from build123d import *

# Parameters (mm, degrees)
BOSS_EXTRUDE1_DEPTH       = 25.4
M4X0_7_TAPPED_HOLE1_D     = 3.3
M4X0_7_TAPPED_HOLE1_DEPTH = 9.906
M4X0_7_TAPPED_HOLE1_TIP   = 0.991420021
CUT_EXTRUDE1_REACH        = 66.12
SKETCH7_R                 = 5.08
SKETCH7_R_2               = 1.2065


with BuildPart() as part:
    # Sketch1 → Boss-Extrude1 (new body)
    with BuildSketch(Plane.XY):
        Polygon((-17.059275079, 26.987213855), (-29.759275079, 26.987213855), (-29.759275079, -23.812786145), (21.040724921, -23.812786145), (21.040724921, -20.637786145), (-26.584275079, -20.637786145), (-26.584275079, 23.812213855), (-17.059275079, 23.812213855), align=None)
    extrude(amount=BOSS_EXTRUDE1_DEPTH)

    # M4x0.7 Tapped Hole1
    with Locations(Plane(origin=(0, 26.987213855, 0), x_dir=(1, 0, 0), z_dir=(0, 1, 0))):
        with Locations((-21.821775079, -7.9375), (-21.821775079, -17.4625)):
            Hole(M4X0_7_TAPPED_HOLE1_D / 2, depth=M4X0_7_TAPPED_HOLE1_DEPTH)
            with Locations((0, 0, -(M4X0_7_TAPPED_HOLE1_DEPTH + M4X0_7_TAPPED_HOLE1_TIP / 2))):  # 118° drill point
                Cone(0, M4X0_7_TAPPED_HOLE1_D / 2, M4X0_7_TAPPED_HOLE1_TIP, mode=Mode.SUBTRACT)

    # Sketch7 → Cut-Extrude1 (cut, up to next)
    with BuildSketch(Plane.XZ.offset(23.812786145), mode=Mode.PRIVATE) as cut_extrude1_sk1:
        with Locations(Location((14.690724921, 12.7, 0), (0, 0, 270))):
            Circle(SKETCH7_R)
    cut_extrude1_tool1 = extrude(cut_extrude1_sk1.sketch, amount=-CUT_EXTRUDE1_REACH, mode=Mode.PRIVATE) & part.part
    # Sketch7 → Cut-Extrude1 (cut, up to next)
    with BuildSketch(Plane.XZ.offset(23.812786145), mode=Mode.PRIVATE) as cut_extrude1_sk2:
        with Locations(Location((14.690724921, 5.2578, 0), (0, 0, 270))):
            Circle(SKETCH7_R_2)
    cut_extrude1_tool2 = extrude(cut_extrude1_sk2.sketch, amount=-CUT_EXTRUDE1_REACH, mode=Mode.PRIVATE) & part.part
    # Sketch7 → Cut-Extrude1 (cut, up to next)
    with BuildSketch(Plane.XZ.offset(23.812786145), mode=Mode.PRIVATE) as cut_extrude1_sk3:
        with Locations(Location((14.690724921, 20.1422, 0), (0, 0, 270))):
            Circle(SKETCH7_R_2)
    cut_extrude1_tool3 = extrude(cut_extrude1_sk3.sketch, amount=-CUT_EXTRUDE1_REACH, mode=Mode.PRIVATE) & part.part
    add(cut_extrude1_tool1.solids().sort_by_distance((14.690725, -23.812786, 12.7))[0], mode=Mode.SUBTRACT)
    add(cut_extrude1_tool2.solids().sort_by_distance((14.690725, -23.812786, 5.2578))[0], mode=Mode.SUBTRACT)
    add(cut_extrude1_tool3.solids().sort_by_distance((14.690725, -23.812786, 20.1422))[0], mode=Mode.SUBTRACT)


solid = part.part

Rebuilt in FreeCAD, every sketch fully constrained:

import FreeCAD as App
import Part
import Sketcher
from FreeCAD import Vector
Q = App.Units.Quantity

doc = App.newDocument("Part")
params = doc.addObject("Spreadsheet::Sheet", "Params")
for row, (alias, value) in enumerate([
    ("sketch1_width", "2 in"),
    ("sketch1_width2", "0.5 in"),
    ("sketch1_height", "1.75 in"),
    ("sketch1_width3", "1.875 in"),
    ("pad1_length", "1 in"),
    ("hole_diameter", "3.3 mm"),
    ("hole_depth", "0.39 in"),
    ("sketch3_diameter", "0.4 in"),
    ("sketch4_diameter", "0.095 in"),
    ("sketch5_diameter", "0.095 in"),
], start=1):
    params.set(f"A{row}", alias)
    params.set(f"B{row}", "=" + value)
    params.setAlias(f"B{row}", alias)

body = doc.addObject("PartDesign::Body", "Body")

sketch1 = body.newObject("Sketcher::SketchObject", "Sketch")
sketch1.AttachmentSupport = (doc.getObject("XY_Plane"), [""])
sketch1.MapMode = "FlatFace"
sketch1.addGeometry([
    Part.LineSegment(Vector(-17.1, 27, 0), Vector(-29.8, 27, 0)),
    Part.LineSegment(Vector(-29.8, 27, 0), Vector(-29.8, -23.8, 0)),
    Part.LineSegment(Vector(-29.8, -23.8, 0), Vector(21, -23.8, 0)),
    Part.LineSegment(Vector(21, -23.8, 0), Vector(21, -20.6, 0)),
    Part.LineSegment(Vector(21, -20.6, 0), Vector(-26.6, -20.6, 0)),
    Part.LineSegment(Vector(-26.6, -20.6, 0), Vector(-26.6, 23.8, 0)),
    Part.LineSegment(Vector(-26.6, 23.8, 0), Vector(-17.1, 23.8, 0)),
    Part.LineSegment(Vector(-17.1, 23.8, 0), Vector(-17.1, 27, 0)),
], False)
sketch1.addConstraint([
    Sketcher.Constraint("Coincident", 0, 2, 1, 1),
    Sketcher.Constraint("Coincident", 1, 2, 2, 1),
    Sketcher.Constraint("Coincident", 2, 2, 3, 1),
    Sketcher.Constraint("Coincident", 3, 2, 4, 1),
    Sketcher.Constraint("Coincident", 4, 2, 5, 1),
    Sketcher.Constraint("Coincident", 5, 2, 6, 1),
    Sketcher.Constraint("Coincident", 6, 2, 7, 1),
    Sketcher.Constraint("Coincident", 7, 2, 0, 1),
    Sketcher.Constraint("Horizontal", 0),
    Sketcher.Constraint("Vertical", 1),
    Sketcher.Constraint("Horizontal", 2),
    Sketcher.Constraint("Vertical", 3),
    Sketcher.Constraint("Horizontal", 4),
    Sketcher.Constraint("Vertical", 5),
    Sketcher.Constraint("Horizontal", 6),
    Sketcher.Constraint("Vertical", 7),
    Sketcher.Constraint("Equal", 2, 1),
    Sketcher.Constraint("Equal", 3, 7),
    Sketcher.Constraint("DistanceX", 2, 1, 2, 2, Q("2 in")),
    Sketcher.Constraint("DistanceX", 0, 2, 0, 1, Q("0.5 in")),
    Sketcher.Constraint("DistanceY", 5, 1, 5, 2, Q("1.75 in")),
    Sketcher.Constraint("DistanceX", 4, 2, 4, 1, Q("1.875 in")),
    Sketcher.Constraint("DistanceX", 0, 2, -1, 1, 29.759275),
    Sketcher.Constraint("DistanceY", -1, 1, 0, 2, 26.987214),
])
sketch1.setExpression("Constraints[18]", "Params.sketch1_width")
sketch1.setExpression("Constraints[19]", "Params.sketch1_width2")
sketch1.setExpression("Constraints[20]", "Params.sketch1_height")
sketch1.setExpression("Constraints[21]", "Params.sketch1_width3")
pad1 = body.newObject("PartDesign::Pad", "Pad")
pad1.Profile = sketch1
pad1.setExpression("Length", "Params.pad1_length")

sketch2 = body.newObject("Sketcher::SketchObject", "Sketch001")
sketch2.AttachmentSupport = (doc.getObject("XZ_Plane"), [""])
sketch2.MapMode = "FlatFace"
sketch2.AttachmentOffset = App.Placement(Vector(0, 0, -26.987214), App.Rotation())
sketch2.addGeometry([
    Part.Circle(Vector(-21.8, 7.9, 0), Vector(0, 0, 1), 1.6),
    Part.Circle(Vector(-21.8, 17.5, 0), Vector(0, 0, 1), 1.6),
], False)
sketch2.addConstraint([
    Sketcher.Constraint("Equal", 0, 1),
    Sketcher.Constraint("Vertical", 0, 3, 1, 3),
    Sketcher.Constraint("Diameter", 0, 3.3),
    Sketcher.Constraint("DistanceY", -1, 1, 0, 3, Q("0.3125 in")),
    Sketcher.Constraint("DistanceY", -1, 1, 1, 3, Q("0.6875 in")),
    Sketcher.Constraint("DistanceX", 0, 3, -1, 1, 21.821775),
])
doc.recompute()
hole = body.newObject("PartDesign::Hole", "Hole")
hole.Profile = sketch2
hole.ThreadType = "None"
hole.setExpression("Diameter", "Params.hole_diameter")
hole.DepthType = "Dimension"
hole.setExpression("Depth", "Params.hole_depth")
hole.DrillPoint = "Angled"
hole.DrillPointAngle = 118
hole.Reversed = True

sketch3 = body.newObject("Sketcher::SketchObject", "Sketch002")
sketch3.AttachmentSupport = (doc.getObject("XZ_Plane"), [""])
sketch3.MapMode = "FlatFace"
sketch3.AttachmentOffset = App.Placement(Vector(0, 0, 23.812786), App.Rotation())
sketch3.addGeometry(Part.Circle(Vector(15, 13, 0), Vector(0, 0, 1), 5), False)
sketch3.addConstraint([
    Sketcher.Constraint("Diameter", 0, Q("0.4 in")),
    Sketcher.Constraint("DistanceY", -1, 1, 0, 3, Q("0.5 in")),
    Sketcher.Constraint("DistanceX", -1, 1, 0, 3, 14.690725),
])
sketch3.setExpression("Constraints[0]", "Params.sketch3_diameter")
pocket1 = body.newObject("PartDesign::Pocket", "Pocket")
pocket1.Profile = sketch3
pocket1.Type = "UpToFirst"

sketch4 = body.newObject("Sketcher::SketchObject", "Sketch003")
sketch4.AttachmentSupport = (doc.getObject("XZ_Plane"), [""])
sketch4.MapMode = "FlatFace"
sketch4.AttachmentOffset = App.Placement(Vector(0, 0, 23.812786), App.Rotation())
sketch4.addGeometry(Part.Circle(Vector(14.7, 5.3, 0), Vector(0, 0, 1), 1.2), False)
sketch4.addConstraint([
    Sketcher.Constraint("Diameter", 0, Q("0.095 in")),
    Sketcher.Constraint("DistanceY", -1, 1, 0, 3, Q("0.207 in")),
    Sketcher.Constraint("DistanceX", -1, 1, 0, 3, 14.690725),
])
sketch4.setExpression("Constraints[0]", "Params.sketch4_diameter")
pocket2 = body.newObject("PartDesign::Pocket", "Pocket001")
pocket2.Profile = sketch4
pocket2.Type = "UpToFirst"

sketch5 = body.newObject("Sketcher::SketchObject", "Sketch004")
sketch5.AttachmentSupport = (doc.getObject("XZ_Plane"), [""])
sketch5.MapMode = "FlatFace"
sketch5.AttachmentOffset = App.Placement(Vector(0, 0, 23.812786), App.Rotation())
sketch5.addGeometry(Part.Circle(Vector(14.7, 20.1, 0), Vector(0, 0, 1), 1.2), False)
sketch5.addConstraint([
    Sketcher.Constraint("Diameter", 0, Q("0.095 in")),
    Sketcher.Constraint("DistanceY", -1, 1, 0, 3, Q("0.793 in")),
    Sketcher.Constraint("DistanceX", -1, 1, 0, 3, 14.690725),
])
sketch5.setExpression("Constraints[0]", "Params.sketch5_diameter")
pocket3 = body.newObject("PartDesign::Pocket", "Pocket002")
pocket3.Profile = sketch5
pocket3.Type = "UpToFirst"

doc.recompute()
